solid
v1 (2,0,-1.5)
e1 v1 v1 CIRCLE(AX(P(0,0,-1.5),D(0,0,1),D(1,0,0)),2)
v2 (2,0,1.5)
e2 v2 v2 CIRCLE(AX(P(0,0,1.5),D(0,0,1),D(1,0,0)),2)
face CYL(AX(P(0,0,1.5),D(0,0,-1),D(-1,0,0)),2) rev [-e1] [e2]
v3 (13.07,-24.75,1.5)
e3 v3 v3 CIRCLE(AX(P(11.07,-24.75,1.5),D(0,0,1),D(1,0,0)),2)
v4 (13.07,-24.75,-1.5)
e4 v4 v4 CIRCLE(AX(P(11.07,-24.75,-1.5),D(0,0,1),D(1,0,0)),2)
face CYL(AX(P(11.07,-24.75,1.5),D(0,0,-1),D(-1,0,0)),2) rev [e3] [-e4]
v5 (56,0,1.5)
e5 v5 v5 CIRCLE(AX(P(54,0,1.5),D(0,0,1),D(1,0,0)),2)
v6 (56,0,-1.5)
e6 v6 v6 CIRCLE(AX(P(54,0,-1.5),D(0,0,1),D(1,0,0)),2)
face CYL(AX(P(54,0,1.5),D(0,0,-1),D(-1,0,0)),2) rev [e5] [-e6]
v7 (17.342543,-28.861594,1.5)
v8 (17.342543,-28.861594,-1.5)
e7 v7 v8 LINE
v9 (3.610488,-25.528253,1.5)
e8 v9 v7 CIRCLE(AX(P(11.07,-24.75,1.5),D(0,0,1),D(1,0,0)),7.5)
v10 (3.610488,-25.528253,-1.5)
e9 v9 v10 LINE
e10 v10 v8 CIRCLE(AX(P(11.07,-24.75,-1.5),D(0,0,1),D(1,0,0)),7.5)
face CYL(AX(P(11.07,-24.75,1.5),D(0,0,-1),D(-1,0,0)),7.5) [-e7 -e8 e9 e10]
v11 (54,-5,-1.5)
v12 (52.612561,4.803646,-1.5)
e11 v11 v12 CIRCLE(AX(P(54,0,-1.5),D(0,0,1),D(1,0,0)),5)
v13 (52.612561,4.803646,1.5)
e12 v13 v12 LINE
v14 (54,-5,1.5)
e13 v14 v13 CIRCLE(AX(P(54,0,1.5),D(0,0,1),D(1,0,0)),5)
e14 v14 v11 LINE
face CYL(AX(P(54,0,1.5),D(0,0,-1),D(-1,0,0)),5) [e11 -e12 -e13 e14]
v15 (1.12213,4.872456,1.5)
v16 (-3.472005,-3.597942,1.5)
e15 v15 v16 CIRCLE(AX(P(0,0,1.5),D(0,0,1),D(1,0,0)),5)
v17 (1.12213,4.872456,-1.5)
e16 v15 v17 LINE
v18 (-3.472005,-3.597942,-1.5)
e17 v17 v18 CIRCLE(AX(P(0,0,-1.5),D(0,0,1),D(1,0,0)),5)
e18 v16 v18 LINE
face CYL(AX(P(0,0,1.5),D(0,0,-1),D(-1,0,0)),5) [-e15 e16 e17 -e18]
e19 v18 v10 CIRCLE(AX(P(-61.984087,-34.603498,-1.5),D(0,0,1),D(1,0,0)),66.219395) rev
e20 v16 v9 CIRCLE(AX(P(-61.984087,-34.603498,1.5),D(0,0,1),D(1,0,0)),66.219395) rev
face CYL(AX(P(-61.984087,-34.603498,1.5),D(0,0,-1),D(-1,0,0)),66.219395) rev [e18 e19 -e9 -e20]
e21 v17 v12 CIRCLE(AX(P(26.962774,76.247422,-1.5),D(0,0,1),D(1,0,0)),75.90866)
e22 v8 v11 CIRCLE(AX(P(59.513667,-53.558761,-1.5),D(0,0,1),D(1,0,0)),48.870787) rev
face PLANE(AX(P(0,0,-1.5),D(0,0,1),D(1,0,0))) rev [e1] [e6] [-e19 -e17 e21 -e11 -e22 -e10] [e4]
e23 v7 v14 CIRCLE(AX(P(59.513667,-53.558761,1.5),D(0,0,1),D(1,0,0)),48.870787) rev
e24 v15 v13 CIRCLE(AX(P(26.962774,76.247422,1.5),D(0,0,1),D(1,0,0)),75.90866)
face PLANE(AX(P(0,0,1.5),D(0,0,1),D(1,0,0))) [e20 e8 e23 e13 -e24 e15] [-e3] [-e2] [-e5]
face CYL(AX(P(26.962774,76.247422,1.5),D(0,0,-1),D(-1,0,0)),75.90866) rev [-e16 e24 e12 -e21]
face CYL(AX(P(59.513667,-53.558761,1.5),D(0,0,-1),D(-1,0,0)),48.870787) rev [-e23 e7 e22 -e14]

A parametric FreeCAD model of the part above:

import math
import FreeCAD as App
import Part
import Sketcher
from FreeCAD import Vector

doc = App.newDocument("Part")
body = doc.addObject("PartDesign::Body", "Body")

sketch1 = body.newObject("Sketcher::SketchObject", "Sketch")
sketch1.AttachmentSupport = (doc.getObject("XY_Plane"), [""])
sketch1.MapMode = "FlatFace"
sketch1.addGeometry(Part.ArcOfCircle(Part.Circle(Vector(27, 76.2, 0), Vector(0, 0, 1), 75.9), math.radians(-109), math.radians(-71)), False)
sketch1.addGeometry(Part.ArcOfCircle(Part.Circle(Vector(27, 76.2, 0), Vector(0, 0, 1), 75.9), math.radians(-109.9), math.radians(-109.05)), False)
sketch1.addGeometry(Part.ArcOfCircle(Part.Circle(Vector(0, 0, 0), Vector(0, 0, 1), 5), math.radians(77), math.radians(226)), False)
sketch1.addGeometry(Part.ArcOfCircle(Part.Circle(Vector(-62, -34.6, 0), Vector(0, 0, 1), 66.2), math.radians(8), math.radians(28)), False)
sketch1.addGeometry(Part.ArcOfCircle(Part.Circle(Vector(11.1, -24.7, 0), Vector(0, 0, 1), 7.5), math.radians(-174), math.radians(-33)), False)
sketch1.addGeometry(Part.ArcOfCircle(Part.Circle(Vector(59.5, -53.6, 0), Vector(0, 0, 1), 48.9), math.radians(148.88), math.radians(149.64)), False)
sketch1.addGeometry(Part.ArcOfCircle(Part.Circle(Vector(59.5, -53.6, 0), Vector(0, 0, 1), 48.9), math.radians(96), math.radians(149)), False)
sketch1.addGeometry(Part.ArcOfCircle(Part.Circle(Vector(54, 0, 0), Vector(0, 0, 1), 5), math.radians(-90), math.radians(106)), False)
sketch1.addGeometry(Part.ArcOfCircle(Part.Circle(Vector(27, 76.2, 0), Vector(0, 0, 1), 75.9), math.radians(-70.7), math.radians(-70.25)), False)
sketch1.addGeometry(Part.Circle(Vector(11.1, -24.8, 0), Vector(0, 0, 1), 2), False)
sketch1.addGeometry(Part.Circle(Vector(0, 0, 0), Vector(0, 0, 1), 2), False)
sketch1.addGeometry(Part.Circle(Vector(54, 0, 0), Vector(0, 0, 1), 2), False)
sketch1.addConstraint(Sketcher.Constraint("Tangent", 0, 1, 1, 2))
sketch1.addConstraint(Sketcher.Constraint("Coincident", 1, 1, 2, 1))
sketch1.addConstraint(Sketcher.Constraint("Coincident", 2, 2, 3, 2))
sketch1.addConstraint(Sketcher.Constraint("Coincident", 3, 1, 4, 1))
sketch1.addConstraint(Sketcher.Constraint("Coincident", 4, 2, 5, 2))
sketch1.addConstraint(Sketcher.Constraint("Tangent", 5, 1, 6, 2))
sketch1.addConstraint(Sketcher.Constraint("Coincident", 6, 1, 7, 1))
sketch1.addConstraint(Sketcher.Constraint("Coincident", 7, 2, 8, 2))
sketch1.addConstraint(Sketcher.Constraint("Tangent", 8, 1, 0, 2))
sketch1.addConstraint(Sketcher.Constraint("Coincident", 2, 3, -1, 1))
sketch1.addConstraint(Sketcher.Constraint("Coincident", 10, 3, -1, 1))
sketch1.addConstraint(Sketcher.Constraint("Coincident", 9, 3, 4, 3))
sketch1.addConstraint(Sketcher.Constraint("Coincident", 11, 3, 7, 3))
sketch1.addConstraint(Sketcher.Constraint("Equal", 2, 7))
sketch1.addConstraint(Sketcher.Constraint("Equal", 9, 10))
sketch1.addConstraint(Sketcher.Constraint("Equal", 10, 11))
sketch1.addConstraint(Sketcher.Constraint("PointOnObject", 7, 3, -1))
sketch1.addConstraint(Sketcher.Constraint("Vertical", 11, 3, 6, 1))
sketch1.addConstraint(Sketcher.Constraint("Diameter", 9, 4.0))
sketch1.addConstraint(Sketcher.Constraint("Radius", 2, 5.0))
sketch1.addConstraint(Sketcher.Constraint("Radius", 4, 7.5))
sketch1.addConstraint(Sketcher.Constraint("DistanceX", -1, 1, 7, 3, 54.0))
sketch1.addConstraint(Sketcher.Constraint("DistanceX", -1, 1, 4, 3, 11.07))
sketch1.addConstraint(Sketcher.Constraint("DistanceY", 4, 3, -1, 1, 24.75))
sketch1.addConstraint(Sketcher.Constraint("Radius", 0, 75.90866))
sketch1.addConstraint(Sketcher.Constraint("Radius", 5, 48.870782))
sketch1.addConstraint(Sketcher.Constraint("Radius", 8, 75.908651))
sketch1.addConstraint(Sketcher.Constraint("Radius", 1, 75.908643))
sketch1.addConstraint(Sketcher.Constraint("Radius", 3, 66.219395))
sketch1.addConstraint(Sketcher.Constraint("Radius", 6, 48.870787))
sketch1.addConstraint(Sketcher.Constraint("DistanceX", 1, 3, 6, 3, 32.550899))
sketch1.addConstraint(Sketcher.Constraint("DistanceX", -1, 1, 1, 3, 26.962769))
sketch1.addConstraint(Sketcher.Constraint("DistanceX", -1, 1, 0, 1, 2.190311))
sketch1.addConstraint(Sketcher.Constraint("DistanceX", -1, 1, 1, 1, 1.12213))
sketch1.addConstraint(Sketcher.Constraint("DistanceY", 2, 2, -1, 1, 3.597942))
sketch1.addConstraint(Sketcher.Constraint("DistanceY", 5, 1, -1, 1, 28.298079))
sketch1.addConstraint(Sketcher.Constraint("DistanceX", 3, 3, 0, 3, 88.946861))
sketch1.addConstraint(Sketcher.Constraint("DistanceX", 8, 1, 7, 2, 0.561279))
pad1 = body.newObject("PartDesign::Pad", "Pad")
pad1.Profile = sketch1
pad1.Length = 3
pad1.Midplane = True

doc.recompute()
